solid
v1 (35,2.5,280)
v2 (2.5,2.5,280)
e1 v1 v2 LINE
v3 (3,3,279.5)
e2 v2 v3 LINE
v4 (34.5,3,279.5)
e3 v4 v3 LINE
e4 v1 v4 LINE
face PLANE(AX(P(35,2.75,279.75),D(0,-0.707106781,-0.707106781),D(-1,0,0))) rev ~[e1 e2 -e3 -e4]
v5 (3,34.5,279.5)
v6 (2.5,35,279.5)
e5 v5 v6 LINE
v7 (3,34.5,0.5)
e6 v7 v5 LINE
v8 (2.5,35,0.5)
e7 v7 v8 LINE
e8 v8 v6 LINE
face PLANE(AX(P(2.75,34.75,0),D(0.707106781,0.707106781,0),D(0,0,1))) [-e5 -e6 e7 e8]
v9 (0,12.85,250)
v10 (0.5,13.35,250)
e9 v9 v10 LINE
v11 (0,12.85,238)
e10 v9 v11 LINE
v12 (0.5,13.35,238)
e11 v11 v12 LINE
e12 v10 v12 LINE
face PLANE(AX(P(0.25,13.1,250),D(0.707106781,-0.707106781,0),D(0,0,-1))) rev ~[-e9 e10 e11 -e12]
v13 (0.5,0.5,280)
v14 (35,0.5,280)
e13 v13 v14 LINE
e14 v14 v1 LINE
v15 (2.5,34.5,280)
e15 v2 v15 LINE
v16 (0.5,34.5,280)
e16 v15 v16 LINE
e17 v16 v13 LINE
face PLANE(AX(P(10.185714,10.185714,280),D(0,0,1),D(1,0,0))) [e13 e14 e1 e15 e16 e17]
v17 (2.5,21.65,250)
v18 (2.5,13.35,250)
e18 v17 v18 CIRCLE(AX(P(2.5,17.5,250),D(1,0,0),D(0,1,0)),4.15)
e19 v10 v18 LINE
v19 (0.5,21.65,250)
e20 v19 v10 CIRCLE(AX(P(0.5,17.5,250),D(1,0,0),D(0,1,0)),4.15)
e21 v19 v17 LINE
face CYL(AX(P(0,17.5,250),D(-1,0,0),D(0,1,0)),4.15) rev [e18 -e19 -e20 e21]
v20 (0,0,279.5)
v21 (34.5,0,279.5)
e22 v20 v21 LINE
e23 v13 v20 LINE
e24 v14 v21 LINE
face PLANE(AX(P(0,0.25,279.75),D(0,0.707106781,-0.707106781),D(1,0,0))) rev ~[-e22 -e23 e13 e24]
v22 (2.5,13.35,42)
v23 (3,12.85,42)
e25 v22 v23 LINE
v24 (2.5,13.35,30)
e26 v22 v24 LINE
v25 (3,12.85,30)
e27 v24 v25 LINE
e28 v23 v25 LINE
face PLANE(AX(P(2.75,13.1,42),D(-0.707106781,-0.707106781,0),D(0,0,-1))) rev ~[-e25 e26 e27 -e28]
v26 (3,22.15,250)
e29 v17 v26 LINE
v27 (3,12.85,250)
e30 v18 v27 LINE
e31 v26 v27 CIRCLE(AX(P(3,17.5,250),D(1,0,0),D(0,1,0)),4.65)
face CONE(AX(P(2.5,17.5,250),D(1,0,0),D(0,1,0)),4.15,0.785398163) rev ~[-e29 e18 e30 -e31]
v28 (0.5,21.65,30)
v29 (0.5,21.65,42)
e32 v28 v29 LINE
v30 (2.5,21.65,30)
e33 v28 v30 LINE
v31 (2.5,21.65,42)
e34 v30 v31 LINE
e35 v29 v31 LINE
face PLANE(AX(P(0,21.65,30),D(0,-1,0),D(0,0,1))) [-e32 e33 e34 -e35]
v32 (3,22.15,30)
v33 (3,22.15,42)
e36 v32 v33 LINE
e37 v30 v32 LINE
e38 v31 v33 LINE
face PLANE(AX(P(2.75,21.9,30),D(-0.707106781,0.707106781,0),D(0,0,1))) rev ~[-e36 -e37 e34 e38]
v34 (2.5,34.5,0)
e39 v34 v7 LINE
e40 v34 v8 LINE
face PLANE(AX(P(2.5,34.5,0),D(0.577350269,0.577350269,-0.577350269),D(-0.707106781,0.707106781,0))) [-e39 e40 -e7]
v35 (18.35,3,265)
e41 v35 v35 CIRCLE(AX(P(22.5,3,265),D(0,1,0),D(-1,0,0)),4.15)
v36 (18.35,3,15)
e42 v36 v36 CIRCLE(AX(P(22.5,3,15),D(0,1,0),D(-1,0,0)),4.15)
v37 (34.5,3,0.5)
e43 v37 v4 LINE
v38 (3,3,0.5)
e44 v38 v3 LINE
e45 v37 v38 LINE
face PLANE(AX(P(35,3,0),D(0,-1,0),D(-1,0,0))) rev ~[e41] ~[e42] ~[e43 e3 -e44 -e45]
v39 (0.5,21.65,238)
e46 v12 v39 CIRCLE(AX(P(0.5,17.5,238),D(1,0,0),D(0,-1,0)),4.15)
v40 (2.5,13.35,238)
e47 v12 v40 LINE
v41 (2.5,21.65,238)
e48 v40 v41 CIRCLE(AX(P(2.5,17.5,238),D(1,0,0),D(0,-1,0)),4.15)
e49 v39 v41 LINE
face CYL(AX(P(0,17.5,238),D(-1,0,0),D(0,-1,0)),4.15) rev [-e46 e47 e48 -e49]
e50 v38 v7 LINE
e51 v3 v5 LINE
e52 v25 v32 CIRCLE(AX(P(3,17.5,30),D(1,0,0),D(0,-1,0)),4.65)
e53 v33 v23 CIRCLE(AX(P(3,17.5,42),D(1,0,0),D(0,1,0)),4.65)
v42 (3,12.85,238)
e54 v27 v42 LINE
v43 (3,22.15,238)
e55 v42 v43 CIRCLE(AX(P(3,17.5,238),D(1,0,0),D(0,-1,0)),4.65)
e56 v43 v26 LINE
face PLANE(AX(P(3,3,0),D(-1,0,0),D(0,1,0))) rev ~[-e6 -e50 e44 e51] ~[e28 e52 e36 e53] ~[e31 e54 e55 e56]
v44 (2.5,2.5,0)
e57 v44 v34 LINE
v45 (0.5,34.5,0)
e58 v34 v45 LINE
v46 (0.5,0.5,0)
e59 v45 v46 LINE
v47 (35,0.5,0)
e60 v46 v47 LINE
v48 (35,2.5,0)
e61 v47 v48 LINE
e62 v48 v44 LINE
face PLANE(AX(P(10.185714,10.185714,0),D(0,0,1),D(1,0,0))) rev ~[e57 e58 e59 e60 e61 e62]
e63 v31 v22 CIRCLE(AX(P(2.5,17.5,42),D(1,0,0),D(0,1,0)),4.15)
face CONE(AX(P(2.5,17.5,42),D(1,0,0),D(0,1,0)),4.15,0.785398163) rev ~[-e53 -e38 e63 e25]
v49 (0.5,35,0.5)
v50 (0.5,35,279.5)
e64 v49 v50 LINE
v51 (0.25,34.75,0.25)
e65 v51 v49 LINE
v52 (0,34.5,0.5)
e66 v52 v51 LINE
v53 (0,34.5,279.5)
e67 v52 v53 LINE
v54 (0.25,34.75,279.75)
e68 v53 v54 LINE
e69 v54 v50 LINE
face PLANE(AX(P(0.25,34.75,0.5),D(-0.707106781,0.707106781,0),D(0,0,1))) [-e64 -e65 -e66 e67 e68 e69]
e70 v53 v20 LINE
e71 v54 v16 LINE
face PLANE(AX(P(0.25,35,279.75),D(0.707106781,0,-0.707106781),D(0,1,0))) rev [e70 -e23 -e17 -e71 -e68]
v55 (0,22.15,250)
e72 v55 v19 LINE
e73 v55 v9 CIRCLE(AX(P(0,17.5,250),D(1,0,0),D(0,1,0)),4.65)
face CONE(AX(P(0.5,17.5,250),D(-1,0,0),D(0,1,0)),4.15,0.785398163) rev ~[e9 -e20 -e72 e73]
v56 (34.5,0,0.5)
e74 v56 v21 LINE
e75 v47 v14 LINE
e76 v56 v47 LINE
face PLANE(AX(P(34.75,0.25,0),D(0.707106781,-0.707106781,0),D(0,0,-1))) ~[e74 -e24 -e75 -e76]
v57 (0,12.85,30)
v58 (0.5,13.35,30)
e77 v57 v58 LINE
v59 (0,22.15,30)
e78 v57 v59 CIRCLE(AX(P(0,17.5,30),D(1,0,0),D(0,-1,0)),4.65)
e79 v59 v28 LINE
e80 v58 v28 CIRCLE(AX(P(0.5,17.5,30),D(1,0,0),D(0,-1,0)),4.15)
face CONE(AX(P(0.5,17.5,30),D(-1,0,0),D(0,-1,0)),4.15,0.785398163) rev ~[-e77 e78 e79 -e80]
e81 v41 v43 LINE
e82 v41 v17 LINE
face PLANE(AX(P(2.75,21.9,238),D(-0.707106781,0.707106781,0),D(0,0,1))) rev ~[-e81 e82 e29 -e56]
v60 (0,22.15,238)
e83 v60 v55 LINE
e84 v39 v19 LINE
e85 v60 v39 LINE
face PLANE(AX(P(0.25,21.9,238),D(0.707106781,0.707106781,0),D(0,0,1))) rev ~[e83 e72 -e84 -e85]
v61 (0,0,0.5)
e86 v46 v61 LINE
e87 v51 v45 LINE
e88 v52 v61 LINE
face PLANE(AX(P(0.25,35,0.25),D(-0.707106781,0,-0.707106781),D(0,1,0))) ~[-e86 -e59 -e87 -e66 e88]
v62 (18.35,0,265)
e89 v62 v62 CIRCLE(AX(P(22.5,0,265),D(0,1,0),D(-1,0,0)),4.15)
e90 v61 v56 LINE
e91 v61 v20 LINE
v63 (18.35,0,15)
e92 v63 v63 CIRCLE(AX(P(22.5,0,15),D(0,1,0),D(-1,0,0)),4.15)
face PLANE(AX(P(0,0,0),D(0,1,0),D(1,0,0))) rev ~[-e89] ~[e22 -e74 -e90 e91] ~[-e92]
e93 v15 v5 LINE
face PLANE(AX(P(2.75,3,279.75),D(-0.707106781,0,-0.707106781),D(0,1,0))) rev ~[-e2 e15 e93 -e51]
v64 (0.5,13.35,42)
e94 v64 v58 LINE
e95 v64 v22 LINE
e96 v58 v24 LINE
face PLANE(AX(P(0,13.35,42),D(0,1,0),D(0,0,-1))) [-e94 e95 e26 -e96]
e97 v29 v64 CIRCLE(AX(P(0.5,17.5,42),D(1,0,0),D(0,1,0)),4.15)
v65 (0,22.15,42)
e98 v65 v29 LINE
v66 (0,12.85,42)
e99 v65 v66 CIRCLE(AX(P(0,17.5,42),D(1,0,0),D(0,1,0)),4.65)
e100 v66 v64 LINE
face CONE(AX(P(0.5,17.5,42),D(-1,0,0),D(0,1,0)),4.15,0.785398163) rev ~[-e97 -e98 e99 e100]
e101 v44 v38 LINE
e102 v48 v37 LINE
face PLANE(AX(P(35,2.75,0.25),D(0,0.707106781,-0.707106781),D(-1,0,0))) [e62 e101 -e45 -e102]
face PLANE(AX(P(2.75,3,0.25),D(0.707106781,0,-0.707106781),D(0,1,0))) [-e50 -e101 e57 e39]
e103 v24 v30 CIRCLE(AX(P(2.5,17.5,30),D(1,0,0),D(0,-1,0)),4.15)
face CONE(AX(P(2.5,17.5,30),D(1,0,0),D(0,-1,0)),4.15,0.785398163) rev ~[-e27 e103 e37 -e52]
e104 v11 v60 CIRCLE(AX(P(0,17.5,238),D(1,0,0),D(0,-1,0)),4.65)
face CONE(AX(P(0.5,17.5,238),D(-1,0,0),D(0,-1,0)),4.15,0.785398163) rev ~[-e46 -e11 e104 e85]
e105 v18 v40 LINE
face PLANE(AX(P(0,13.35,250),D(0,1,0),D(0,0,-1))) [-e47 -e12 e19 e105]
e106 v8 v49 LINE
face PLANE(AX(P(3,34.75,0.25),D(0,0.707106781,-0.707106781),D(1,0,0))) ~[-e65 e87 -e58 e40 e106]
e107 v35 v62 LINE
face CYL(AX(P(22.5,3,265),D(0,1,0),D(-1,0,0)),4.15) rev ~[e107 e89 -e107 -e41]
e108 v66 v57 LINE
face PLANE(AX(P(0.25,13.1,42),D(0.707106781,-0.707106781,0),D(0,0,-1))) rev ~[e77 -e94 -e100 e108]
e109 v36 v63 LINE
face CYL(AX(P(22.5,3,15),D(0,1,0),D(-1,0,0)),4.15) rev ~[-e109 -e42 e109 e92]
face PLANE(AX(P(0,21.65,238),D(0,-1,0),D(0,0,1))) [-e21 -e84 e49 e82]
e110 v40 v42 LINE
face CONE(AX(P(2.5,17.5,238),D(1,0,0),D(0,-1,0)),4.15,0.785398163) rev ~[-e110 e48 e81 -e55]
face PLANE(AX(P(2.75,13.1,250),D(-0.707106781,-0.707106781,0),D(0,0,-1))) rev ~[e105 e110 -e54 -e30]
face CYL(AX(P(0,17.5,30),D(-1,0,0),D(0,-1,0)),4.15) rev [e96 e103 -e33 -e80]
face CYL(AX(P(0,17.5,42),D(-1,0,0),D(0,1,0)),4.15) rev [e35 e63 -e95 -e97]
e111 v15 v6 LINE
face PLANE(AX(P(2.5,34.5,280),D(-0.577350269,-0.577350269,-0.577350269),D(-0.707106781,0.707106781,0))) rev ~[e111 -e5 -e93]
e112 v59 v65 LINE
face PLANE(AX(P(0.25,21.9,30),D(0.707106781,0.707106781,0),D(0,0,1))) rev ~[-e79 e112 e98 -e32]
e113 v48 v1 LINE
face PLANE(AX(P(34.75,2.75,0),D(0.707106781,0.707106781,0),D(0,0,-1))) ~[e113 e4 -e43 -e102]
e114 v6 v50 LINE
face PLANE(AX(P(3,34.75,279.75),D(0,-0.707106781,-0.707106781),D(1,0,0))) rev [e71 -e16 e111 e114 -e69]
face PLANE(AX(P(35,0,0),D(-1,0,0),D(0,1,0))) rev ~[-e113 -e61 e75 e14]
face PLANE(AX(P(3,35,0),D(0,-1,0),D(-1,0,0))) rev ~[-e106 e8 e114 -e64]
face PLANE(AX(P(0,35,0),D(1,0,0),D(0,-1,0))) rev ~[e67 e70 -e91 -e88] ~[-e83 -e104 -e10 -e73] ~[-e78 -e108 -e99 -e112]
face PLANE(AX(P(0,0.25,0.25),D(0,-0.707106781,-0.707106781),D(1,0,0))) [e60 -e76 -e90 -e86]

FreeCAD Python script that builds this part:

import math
import FreeCAD as App
import Part
import Sketcher

V = App.Vector
Q = App.Units.Quantity


def edges_at(feature, points):
    """Names of the edges that pass closest to the given points."""
    edges = feature.Shape.Edges
    near = lambda p: min(range(len(edges)), key=lambda i: edges[i].distToShape(Part.Vertex(*p))[0])
    return sorted({f"Edge{near(p) + 1}" for p in points})

doc = App.newDocument("Part")
body = doc.addObject("PartDesign::Body", "Body")

# Sketch on XY plane
sketch1 = body.newObject("Sketcher::SketchObject", "Sketch")
sketch1.AttachmentSupport = (doc.getObject("XY_Plane"), [""])
sketch1.MapMode = "FlatFace"
sketch1.addGeometry(Part.LineSegment(V(0, 35, 0), V(0, 0, 0)), False)
sketch1.addGeometry(Part.LineSegment(V(0, 0, 0), V(35, 0, 0)), False)
sketch1.addGeometry(Part.LineSegment(V(35, 0, 0), V(35, 3, 0)), False)
sketch1.addGeometry(Part.LineSegment(V(35, 3, 0), V(3, 3, 0)), False)
sketch1.addGeometry(Part.LineSegment(V(3, 3, 0), V(3, 35, 0)), False)
sketch1.addGeometry(Part.LineSegment(V(3, 35, 0), V(0, 35, 0)), False)
sketch1.addConstraint(Sketcher.Constraint("Coincident", 0, 2, 1, 1))
sketch1.addConstraint(Sketcher.Constraint("Coincident", 1, 2, 2, 1))
sketch1.addConstraint(Sketcher.Constraint("Coincident", 2, 2, 3, 1))
sketch1.addConstraint(Sketcher.Constraint("Coincident", 3, 2, 4, 1))
sketch1.addConstraint(Sketcher.Constraint("Coincident", 4, 2, 5, 1))
sketch1.addConstraint(Sketcher.Constraint("Coincident", 5, 2, 0, 1))
sketch1.addConstraint(Sketcher.Constraint("Vertical", 0))
sketch1.addConstraint(Sketcher.Constraint("Horizontal", 1))
sketch1.addConstraint(Sketcher.Constraint("Vertical", 2))
sketch1.addConstraint(Sketcher.Constraint("Horizontal", 3))
sketch1.addConstraint(Sketcher.Constraint("Vertical", 4))
sketch1.addConstraint(Sketcher.Constraint("Horizontal", 5))
sketch1.addConstraint(Sketcher.Constraint("Coincident", 0, 2, -1, 1))
sketch1.addConstraint(Sketcher.Constraint("Equal", 1, 0))
sketch1.addConstraint(Sketcher.Constraint("Equal", 5, 2))
sketch1.addConstraint(Sketcher.Constraint("DistanceX", 1, 1, 1, 2, Q("35 mm")))
sketch1.addConstraint(Sketcher.Constraint("DistanceX", 3, 2, 3, 1, Q("32 mm")))
pad1 = body.newObject("PartDesign::Pad", "Pad")
pad1.Profile = sketch1
pad1.Length = 280

# Sketch on YZ plane
sketch2 = body.newObject("Sketcher::SketchObject", "Sketch001")
sketch2.AttachmentSupport = (doc.getObject("YZ_Plane"), [""])
sketch2.MapMode = "FlatFace"
sketch2.addGeometry(Part.LineSegment(V(21.65, 42, 0), V(21.65, 30, 0)), False)
sketch2.addGeometry(Part.ArcOfCircle(Part.Circle(V(17.5, 30, 0), V(0, 0, 1), 4.15), math.radians(180), math.radians(360)), False)
sketch2.addGeometry(Part.LineSegment(V(13.35, 30, 0), V(13.35, 42, 0)), False)
sketch2.addGeometry(Part.ArcOfCircle(Part.Circle(V(17.5, 42, 0), V(0, 0, 1), 4.15), math.radians(0), math.radians(180)), False)
sketch2.addGeometry(Part.LineSegment(V(21.65, 250, 0), V(21.65, 238, 0)), False)
sketch2.addGeometry(Part.ArcOfCircle(Part.Circle(V(17.5, 238, 0), V(0, 0, 1), 4.15), math.radians(180), math.radians(360)), False)
sketch2.addGeometry(Part.LineSegment(V(13.35, 238, 0), V(13.35, 250, 0)), False)
sketch2.addGeometry(Part.ArcOfCircle(Part.Circle(V(17.5, 250, 0), V(0, 0, 1), 4.15), math.radians(0), math.radians(180)), False)
sketch2.addConstraint(Sketcher.Constraint("Tangent", 0, 2, 1, 2))
sketch2.addConstraint(Sketcher.Constraint("Tangent", 1, 1, 2, 1))
sketch2.addConstraint(Sketcher.Constraint("Tangent", 2, 2, 3, 2))
sketch2.addConstraint(Sketcher.Constraint("Tangent", 3, 1, 0, 1))
sketch2.addConstraint(Sketcher.Constraint("Tangent", 4, 2, 5, 2))
sketch2.addConstraint(Sketcher.Constraint("Tangent", 5, 1, 6, 1))
sketch2.addConstraint(Sketcher.Constraint("Tangent", 6, 2, 7, 2))
sketch2.addConstraint(Sketcher.Constraint("Tangent", 7, 1, 4, 1))
sketch2.addConstraint(Sketcher.Constraint("Vertical", 0))
sketch2.addConstraint(Sketcher.Constraint("Vertical", 2))
sketch2.addConstraint(Sketcher.Constraint("Vertical", 4))
sketch2.addConstraint(Sketcher.Constraint("Vertical", 6))
sketch2.addConstraint(Sketcher.Constraint("Equal", 3, 5))
sketch2.addConstraint(Sketcher.Constraint("Vertical", 3, 3, 5, 3))
sketch2.addConstraint(Sketcher.Constraint("Equal", 2, 4))
sketch2.addConstraint(Sketcher.Constraint("DistanceY", 0, 2, 0, 1, Q("12 mm")))
sketch2.addConstraint(Sketcher.Constraint("Radius", 1, Q("4.15 mm")))
sketch2.addConstraint(Sketcher.Constraint("DistanceY", -1, 1, 1, 3, Q("30 mm")))
sketch2.addConstraint(Sketcher.Constraint("DistanceY", -1, 1, 5, 3, Q("238 mm")))
sketch2.addConstraint(Sketcher.Constraint("DistanceX", -1, 1, 1, 3, Q("17.5 mm")))
pocket1 = body.newObject("PartDesign::Pocket", "Pocket")
pocket1.Profile = sketch2
pocket1.Length = 4
pocket1.Reversed = True

# Sketch on XZ plane
sketch3 = body.newObject("Sketcher::SketchObject", "Sketch002")
sketch3.AttachmentSupport = (doc.getObject("XZ_Plane"), [""])
sketch3.MapMode = "FlatFace"
sketch3.AttachmentOffset = App.Placement(V(0, 0, -3), App.Rotation())
sketch3.addGeometry(Part.Circle(V(22.5, 265, 0), V(0, 0, 1), 4.15), False)
sketch3.addGeometry(Part.Circle(V(22.5, 15, 0), V(0, 0, 1), 4.15), False)
sketch3.addConstraint(Sketcher.Constraint("Equal", 0, 1))
sketch3.addConstraint(Sketcher.Constraint("Vertical", 0, 3, 1, 3))
sketch3.addConstraint(Sketcher.Constraint("Diameter", 0, Q("8.3 mm")))
sketch3.addConstraint(Sketcher.Constraint("DistanceY", -1, 1, 0, 3, Q("265 mm")))
sketch3.addConstraint(Sketcher.Constraint("DistanceY", -1, 1, 1, 3, Q("15 mm")))
sketch3.addConstraint(Sketcher.Constraint("DistanceX", -1, 1, 0, 3, Q("22.5 mm")))
pocket2 = body.newObject("PartDesign::Pocket", "Pocket001")
pocket2.Profile = sketch3
pocket2.Length = 4
pocket2.Reversed = True
doc.recompute()

chamfer = body.newObject("PartDesign::Chamfer", "Chamfer")
chamfer.Base = (pocket2, edges_at(pocket2, [
    (17.5, 0, 280),
    (3, 35, 140),
    (35, 3, 140),
    (35, 0, 140),
    (19, 3, 280),
    (3, 13.35, 36),
    (3, 19, 280),
    (3, 17.5, 46.15),
    (3, 21.65, 36),
    (3, 17.5, 25.85),
    (0, 17.5, 25.85),
    (0, 13.35, 36),
    (0, 17.5, 46.15),
    (0, 21.65, 36),
    (3, 13.35, 244),
    (3, 17.5, 254.15),
    (3, 21.65, 244),
    (3, 17.5, 233.85),
    (1.5, 35, 280),
    (0, 17.5, 233.85),
    (0, 13.35, 244),
    (0, 17.5, 254.15),
    (0, 21.65, 244),
    (3, 19, 0),
    (19, 3, 0),
    (0, 17.5, 280),
    (17.5, 0, 0),
    (0, 17.5, 0),
    (1.5, 35, 0),
]))
chamfer.Size = 0.5
doc.recompute()

chamfer2 = body.newObject("PartDesign::Chamfer", "Chamfer001")
chamfer2.Base = (chamfer, edges_at(chamfer, [(0, 35, 140)]))
chamfer2.Size = 0.5

doc.recompute()
